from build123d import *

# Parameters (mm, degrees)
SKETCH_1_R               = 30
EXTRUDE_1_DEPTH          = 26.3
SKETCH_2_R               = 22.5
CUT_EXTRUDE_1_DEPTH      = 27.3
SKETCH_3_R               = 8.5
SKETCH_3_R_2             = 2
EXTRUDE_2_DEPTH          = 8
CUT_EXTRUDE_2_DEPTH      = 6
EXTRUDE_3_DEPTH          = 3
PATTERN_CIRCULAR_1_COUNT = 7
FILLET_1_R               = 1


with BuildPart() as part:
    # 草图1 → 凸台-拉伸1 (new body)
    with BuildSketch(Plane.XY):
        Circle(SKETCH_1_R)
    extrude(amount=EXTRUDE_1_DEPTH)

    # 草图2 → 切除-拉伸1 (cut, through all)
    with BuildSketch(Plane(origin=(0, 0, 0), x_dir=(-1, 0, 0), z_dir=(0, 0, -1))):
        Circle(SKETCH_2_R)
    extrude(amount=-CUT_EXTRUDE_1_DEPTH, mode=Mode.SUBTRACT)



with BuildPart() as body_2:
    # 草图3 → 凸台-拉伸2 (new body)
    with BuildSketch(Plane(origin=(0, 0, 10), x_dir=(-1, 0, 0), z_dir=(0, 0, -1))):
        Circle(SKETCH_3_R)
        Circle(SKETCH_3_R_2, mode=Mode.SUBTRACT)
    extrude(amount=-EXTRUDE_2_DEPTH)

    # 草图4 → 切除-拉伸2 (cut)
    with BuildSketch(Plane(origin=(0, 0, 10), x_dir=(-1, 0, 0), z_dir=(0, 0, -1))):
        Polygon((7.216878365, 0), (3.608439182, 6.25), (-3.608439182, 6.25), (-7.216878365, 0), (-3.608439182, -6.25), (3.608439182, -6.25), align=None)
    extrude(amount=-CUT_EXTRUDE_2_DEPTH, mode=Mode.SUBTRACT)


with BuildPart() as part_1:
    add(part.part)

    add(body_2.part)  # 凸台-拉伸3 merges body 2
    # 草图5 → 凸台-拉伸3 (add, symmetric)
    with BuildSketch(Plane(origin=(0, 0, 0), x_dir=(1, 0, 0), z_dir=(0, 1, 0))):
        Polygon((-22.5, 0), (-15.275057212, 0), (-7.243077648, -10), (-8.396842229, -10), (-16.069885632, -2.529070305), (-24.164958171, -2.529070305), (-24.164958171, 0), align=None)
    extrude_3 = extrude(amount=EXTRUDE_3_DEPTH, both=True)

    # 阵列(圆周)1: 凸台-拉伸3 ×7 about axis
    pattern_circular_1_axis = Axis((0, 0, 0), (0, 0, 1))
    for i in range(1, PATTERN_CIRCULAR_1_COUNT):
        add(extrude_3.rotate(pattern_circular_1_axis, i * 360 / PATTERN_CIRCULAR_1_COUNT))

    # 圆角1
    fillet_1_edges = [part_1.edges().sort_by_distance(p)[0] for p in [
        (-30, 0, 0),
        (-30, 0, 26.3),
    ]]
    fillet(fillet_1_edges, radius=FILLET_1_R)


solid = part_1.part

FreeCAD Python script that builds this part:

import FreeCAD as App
import Part
import Sketcher
from FreeCAD import Vector
Q = App.Units.Quantity


def edges_at(feature, points):
    """Names of the edges that pass closest to the given points."""
    edges = feature.Shape.Edges
    near = lambda p: min(range(len(edges)), key=lambda i: edges[i].distToShape(Part.Vertex(*p))[0])
    return sorted({f"Edge{near(p) + 1}" for p in points})

doc = App.newDocument("Part")
params = doc.addObject("Spreadsheet::Sheet", "Params")
for row, (alias, value) in enumerate([
    ("sketch1_diameter", "60 mm"),
    ("pad1_length", "26.3 mm"),
    ("sketch2_diameter", "45 mm"),
    ("sketch3_diameter", "17 mm"),
    ("sketch3_diameter2", "4 mm"),
    ("pad2_length", "8 mm"),
    ("pocket2_length", "6 mm"),
    ("pad3_length", "6 mm"),
    ("fillet_radius", "1 mm"),
], start=1):
    params.set(f"A{row}", alias)
    params.set(f"B{row}", "=" + value)
    params.setAlias(f"B{row}", alias)

body = doc.addObject("PartDesign::Body", "Body")

# Sketch on XY plane
sketch1 = body.newObject("Sketcher::SketchObject", "Sketch")
sketch1.AttachmentSupport = (doc.getObject("XY_Plane"), [""])
sketch1.MapMode = "FlatFace"
sketch1.addGeometry(Part.Circle(Vector(0, 0, 0), Vector(0, 0, 1), 30), False)
sketch1.addConstraint([
    Sketcher.Constraint("Coincident", 0, 3, -1, 1),
    Sketcher.Constraint("Diameter", 0, Q("60 mm")),
])
sketch1.setExpression("Constraints[1]", "Params.sketch1_diameter")
pad1 = body.newObject("PartDesign::Pad", "Pad")
pad1.Profile = sketch1
pad1.setExpression("Length", "Params.pad1_length")

# Sketch on XY plane
sketch2 = body.newObject("Sketcher::SketchObject", "Sketch001")
sketch2.AttachmentSupport = (doc.getObject("XY_Plane"), [""])
sketch2.MapMode = "FlatFace"
sketch2.addGeometry(Part.Circle(Vector(0, 0, 0), Vector(0, 0, 1), 22), False)
sketch2.addConstraint([
    Sketcher.Constraint("Coincident", 0, 3, -1, 1),
    Sketcher.Constraint("Diameter", 0, Q("45 mm")),
])
sketch2.setExpression("Constraints[1]", "Params.sketch2_diameter")
pocket1 = body.newObject("PartDesign::Pocket", "Pocket")
pocket1.Profile = sketch2
pocket1.Type = "ThroughAll"
pocket1.Reversed = True
body2 = doc.addObject("PartDesign::Body", "Body001")

# Sketch on XY plane
sketch3 = body2.newObject("Sketcher::SketchObject", "Sketch002")
sketch3.AttachmentSupport = (doc.getObject("XY_Plane001"), [""])
sketch3.MapMode = "FlatFace"
sketch3.AttachmentOffset = App.Placement(Vector(0, 0, 10), App.Rotation())
sketch3.addGeometry([
    Part.Circle(Vector(0, 0, 0), Vector(0, 0, 1), 8.5),
    Part.Circle(Vector(0, 0, 0), Vector(0, 0, 1), 2),
], False)
sketch3.addConstraint([
    Sketcher.Constraint("Coincident", 0, 3, -1, 1),
    Sketcher.Constraint("Coincident", 1, 3, -1, 1),
    Sketcher.Constraint("Diameter", 0, Q("17 mm")),
    Sketcher.Constraint("Diameter", 1, Q("4 mm")),
])
sketch3.setExpression("Constraints[2]", "Params.sketch3_diameter")
sketch3.setExpression("Constraints[3]", "Params.sketch3_diameter2")
pad2 = body2.newObject("PartDesign::Pad", "Pad001")
pad2.Profile = sketch3
pad2.setExpression("Length", "Params.pad2_length")

# Sketch on XY plane
sketch4 = body2.newObject("Sketcher::SketchObject", "Sketch003")
sketch4.AttachmentSupport = (doc.getObject("XY_Plane001"), [""])
sketch4.MapMode = "FlatFace"
sketch4.AttachmentOffset = App.Placement(Vector(0, 0, 10), App.Rotation())
sketch4.addGeometry([
    Part.LineSegment(Vector(-7, 0, 0), Vector(-4, 6, 0)),  # 0
    Part.LineSegment(Vector(-4, 6, 0), Vector(4, 6, 0)),  # 1
    Part.LineSegment(Vector(4, 6, 0), Vector(7, 0, 0)),  # 2
    Part.LineSegment(Vector(7, 0, 0), Vector(4, -6, 0)),  # 3
    Part.LineSegment(Vector(4, -6, 0), Vector(-4, -6, 0)),  # 4
    Part.LineSegment(Vector(-4, -6, 0), Vector(-7, 0, 0)),  # 5
], False)
sketch4.addConstraint([
    Sketcher.Constraint("Coincident", 0, 2, 1, 1),
    Sketcher.Constraint("Coincident", 1, 2, 2, 1),
    Sketcher.Constraint("Coincident", 2, 2, 3, 1),
    Sketcher.Constraint("Coincident", 3, 2, 4, 1),
    Sketcher.Constraint("Coincident", 4, 2, 5, 1),
    Sketcher.Constraint("Coincident", 5, 2, 0, 1),
    Sketcher.Constraint("Horizontal", 1),
    Sketcher.Constraint("Horizontal", 4),
    Sketcher.Constraint("Symmetric", 0, 2, 3, 2, -1, 1),
    Sketcher.Constraint("Symmetric", 2, 2, 5, 2, -1, 1),
    Sketcher.Constraint("PointOnObject", 2, 2, -1),
    Sketcher.Constraint("Parallel", 2, 5),
    Sketcher.Constraint("Vertical", 1, 2, 3, 2),
    Sketcher.Constraint("Angle", 0, Q("60 deg")),
    Sketcher.Constraint("DistanceY", 3, 2, 1, 2, Q("12.5 mm")),
    Sketcher.Constraint("DistanceX", 1, 1, 1, 2, Q("7.216878 mm")),
])
pocket2 = body2.newObject("PartDesign::Pocket", "Pocket001")
pocket2.Profile = sketch4
pocket2.setExpression("Length", "Params.pocket2_length")
pocket2.Reversed = True
body.AllowCompound = True
doc.recompute()

boolean = body.newObject("PartDesign::Boolean", "Boolean")
boolean.Type = "Fuse"
boolean.addObjects([body2])

# Sketch on XZ plane
sketch5 = body.newObject("Sketcher::SketchObject", "Sketch004")
sketch5.AttachmentSupport = (doc.getObject("XZ_Plane"), [""])
sketch5.MapMode = "FlatFace"
sketch5.addGeometry([
    Part.LineSegment(Vector(-15.3, 0, 0), Vector(-24.2, 0, 0)),  # 0
    Part.LineSegment(Vector(-24.2, 0, 0), Vector(-24.2, 2.5, 0)),  # 1
    Part.LineSegment(Vector(-24.2, 2.5, 0), Vector(-16.1, 2.5, 0)),  # 2
    Part.LineSegment(Vector(-16.1, 2.5, 0), Vector(-8.4, 10, 0)),  # 3
    Part.LineSegment(Vector(-8.4, 10, 0), Vector(-7.2, 10, 0)),  # 4
    Part.LineSegment(Vector(-7.2, 10, 0), Vector(-15.3, 0, 0)),  # 5
], False)
sketch5.addConstraint([
    Sketcher.Constraint("Coincident", 0, 2, 1, 1),
    Sketcher.Constraint("Coincident", 1, 2, 2, 1),
    Sketcher.Constraint("Coincident", 2, 2, 3, 1),
    Sketcher.Constraint("Coincident", 3, 2, 4, 1),
    Sketcher.Constraint("Coincident", 4, 2, 5, 1),
    Sketcher.Constraint("Coincident", 5, 2, 0, 1),
    Sketcher.Constraint("Horizontal", 0),
    Sketcher.Constraint("Vertical", 1),
    Sketcher.Constraint("Horizontal", 2),
    Sketcher.Constraint("Horizontal", 4),
    Sketcher.Constraint("PointOnObject", 0, 2, -1),
    Sketcher.Constraint("DistanceY", -1, 1, 3, 2, Q("10 mm")),
    Sketcher.Constraint("DistanceX", 0, 2, 0, 1, Q("8.889901 mm")),
    Sketcher.Constraint("DistanceY", 1, 1, 1, 2, Q("2.52907 mm")),
    Sketcher.Constraint("Distance", 3, Q("10.70936 mm")),
    Sketcher.Constraint("Distance", 5, Q("12.82625 mm")),
    Sketcher.Constraint("DistanceX", 2, 1, 2, 2, Q("8.095073 mm")),
    Sketcher.Constraint("DistanceX", 0, 2, -1, 1, Q("24.164958 mm")),
])
pad3 = body.newObject("PartDesign::Pad", "Pad002")
pad3.Profile = sketch5
pad3.setExpression("Length", "Params.pad3_length")
pad3.Midplane = True
doc.recompute()

polarpattern = body.newObject("PartDesign::PolarPattern", "PolarPattern")
polarpattern.Originals = [pad3]
polarpattern.Axis = (doc.getObject("Z_Axis"), [""])
polarpattern.Angle = 360
polarpattern.Occurrences = 7
body.Tip = polarpattern
doc.recompute()

fillet = body.newObject("PartDesign::Fillet", "Fillet")
fillet.Base = (polarpattern, edges_at(polarpattern, [(-30, 0, 0), (-30, 0, 26.3)]))
fillet.setExpression("Radius", "Params.fillet_radius")

doc.recompute()
